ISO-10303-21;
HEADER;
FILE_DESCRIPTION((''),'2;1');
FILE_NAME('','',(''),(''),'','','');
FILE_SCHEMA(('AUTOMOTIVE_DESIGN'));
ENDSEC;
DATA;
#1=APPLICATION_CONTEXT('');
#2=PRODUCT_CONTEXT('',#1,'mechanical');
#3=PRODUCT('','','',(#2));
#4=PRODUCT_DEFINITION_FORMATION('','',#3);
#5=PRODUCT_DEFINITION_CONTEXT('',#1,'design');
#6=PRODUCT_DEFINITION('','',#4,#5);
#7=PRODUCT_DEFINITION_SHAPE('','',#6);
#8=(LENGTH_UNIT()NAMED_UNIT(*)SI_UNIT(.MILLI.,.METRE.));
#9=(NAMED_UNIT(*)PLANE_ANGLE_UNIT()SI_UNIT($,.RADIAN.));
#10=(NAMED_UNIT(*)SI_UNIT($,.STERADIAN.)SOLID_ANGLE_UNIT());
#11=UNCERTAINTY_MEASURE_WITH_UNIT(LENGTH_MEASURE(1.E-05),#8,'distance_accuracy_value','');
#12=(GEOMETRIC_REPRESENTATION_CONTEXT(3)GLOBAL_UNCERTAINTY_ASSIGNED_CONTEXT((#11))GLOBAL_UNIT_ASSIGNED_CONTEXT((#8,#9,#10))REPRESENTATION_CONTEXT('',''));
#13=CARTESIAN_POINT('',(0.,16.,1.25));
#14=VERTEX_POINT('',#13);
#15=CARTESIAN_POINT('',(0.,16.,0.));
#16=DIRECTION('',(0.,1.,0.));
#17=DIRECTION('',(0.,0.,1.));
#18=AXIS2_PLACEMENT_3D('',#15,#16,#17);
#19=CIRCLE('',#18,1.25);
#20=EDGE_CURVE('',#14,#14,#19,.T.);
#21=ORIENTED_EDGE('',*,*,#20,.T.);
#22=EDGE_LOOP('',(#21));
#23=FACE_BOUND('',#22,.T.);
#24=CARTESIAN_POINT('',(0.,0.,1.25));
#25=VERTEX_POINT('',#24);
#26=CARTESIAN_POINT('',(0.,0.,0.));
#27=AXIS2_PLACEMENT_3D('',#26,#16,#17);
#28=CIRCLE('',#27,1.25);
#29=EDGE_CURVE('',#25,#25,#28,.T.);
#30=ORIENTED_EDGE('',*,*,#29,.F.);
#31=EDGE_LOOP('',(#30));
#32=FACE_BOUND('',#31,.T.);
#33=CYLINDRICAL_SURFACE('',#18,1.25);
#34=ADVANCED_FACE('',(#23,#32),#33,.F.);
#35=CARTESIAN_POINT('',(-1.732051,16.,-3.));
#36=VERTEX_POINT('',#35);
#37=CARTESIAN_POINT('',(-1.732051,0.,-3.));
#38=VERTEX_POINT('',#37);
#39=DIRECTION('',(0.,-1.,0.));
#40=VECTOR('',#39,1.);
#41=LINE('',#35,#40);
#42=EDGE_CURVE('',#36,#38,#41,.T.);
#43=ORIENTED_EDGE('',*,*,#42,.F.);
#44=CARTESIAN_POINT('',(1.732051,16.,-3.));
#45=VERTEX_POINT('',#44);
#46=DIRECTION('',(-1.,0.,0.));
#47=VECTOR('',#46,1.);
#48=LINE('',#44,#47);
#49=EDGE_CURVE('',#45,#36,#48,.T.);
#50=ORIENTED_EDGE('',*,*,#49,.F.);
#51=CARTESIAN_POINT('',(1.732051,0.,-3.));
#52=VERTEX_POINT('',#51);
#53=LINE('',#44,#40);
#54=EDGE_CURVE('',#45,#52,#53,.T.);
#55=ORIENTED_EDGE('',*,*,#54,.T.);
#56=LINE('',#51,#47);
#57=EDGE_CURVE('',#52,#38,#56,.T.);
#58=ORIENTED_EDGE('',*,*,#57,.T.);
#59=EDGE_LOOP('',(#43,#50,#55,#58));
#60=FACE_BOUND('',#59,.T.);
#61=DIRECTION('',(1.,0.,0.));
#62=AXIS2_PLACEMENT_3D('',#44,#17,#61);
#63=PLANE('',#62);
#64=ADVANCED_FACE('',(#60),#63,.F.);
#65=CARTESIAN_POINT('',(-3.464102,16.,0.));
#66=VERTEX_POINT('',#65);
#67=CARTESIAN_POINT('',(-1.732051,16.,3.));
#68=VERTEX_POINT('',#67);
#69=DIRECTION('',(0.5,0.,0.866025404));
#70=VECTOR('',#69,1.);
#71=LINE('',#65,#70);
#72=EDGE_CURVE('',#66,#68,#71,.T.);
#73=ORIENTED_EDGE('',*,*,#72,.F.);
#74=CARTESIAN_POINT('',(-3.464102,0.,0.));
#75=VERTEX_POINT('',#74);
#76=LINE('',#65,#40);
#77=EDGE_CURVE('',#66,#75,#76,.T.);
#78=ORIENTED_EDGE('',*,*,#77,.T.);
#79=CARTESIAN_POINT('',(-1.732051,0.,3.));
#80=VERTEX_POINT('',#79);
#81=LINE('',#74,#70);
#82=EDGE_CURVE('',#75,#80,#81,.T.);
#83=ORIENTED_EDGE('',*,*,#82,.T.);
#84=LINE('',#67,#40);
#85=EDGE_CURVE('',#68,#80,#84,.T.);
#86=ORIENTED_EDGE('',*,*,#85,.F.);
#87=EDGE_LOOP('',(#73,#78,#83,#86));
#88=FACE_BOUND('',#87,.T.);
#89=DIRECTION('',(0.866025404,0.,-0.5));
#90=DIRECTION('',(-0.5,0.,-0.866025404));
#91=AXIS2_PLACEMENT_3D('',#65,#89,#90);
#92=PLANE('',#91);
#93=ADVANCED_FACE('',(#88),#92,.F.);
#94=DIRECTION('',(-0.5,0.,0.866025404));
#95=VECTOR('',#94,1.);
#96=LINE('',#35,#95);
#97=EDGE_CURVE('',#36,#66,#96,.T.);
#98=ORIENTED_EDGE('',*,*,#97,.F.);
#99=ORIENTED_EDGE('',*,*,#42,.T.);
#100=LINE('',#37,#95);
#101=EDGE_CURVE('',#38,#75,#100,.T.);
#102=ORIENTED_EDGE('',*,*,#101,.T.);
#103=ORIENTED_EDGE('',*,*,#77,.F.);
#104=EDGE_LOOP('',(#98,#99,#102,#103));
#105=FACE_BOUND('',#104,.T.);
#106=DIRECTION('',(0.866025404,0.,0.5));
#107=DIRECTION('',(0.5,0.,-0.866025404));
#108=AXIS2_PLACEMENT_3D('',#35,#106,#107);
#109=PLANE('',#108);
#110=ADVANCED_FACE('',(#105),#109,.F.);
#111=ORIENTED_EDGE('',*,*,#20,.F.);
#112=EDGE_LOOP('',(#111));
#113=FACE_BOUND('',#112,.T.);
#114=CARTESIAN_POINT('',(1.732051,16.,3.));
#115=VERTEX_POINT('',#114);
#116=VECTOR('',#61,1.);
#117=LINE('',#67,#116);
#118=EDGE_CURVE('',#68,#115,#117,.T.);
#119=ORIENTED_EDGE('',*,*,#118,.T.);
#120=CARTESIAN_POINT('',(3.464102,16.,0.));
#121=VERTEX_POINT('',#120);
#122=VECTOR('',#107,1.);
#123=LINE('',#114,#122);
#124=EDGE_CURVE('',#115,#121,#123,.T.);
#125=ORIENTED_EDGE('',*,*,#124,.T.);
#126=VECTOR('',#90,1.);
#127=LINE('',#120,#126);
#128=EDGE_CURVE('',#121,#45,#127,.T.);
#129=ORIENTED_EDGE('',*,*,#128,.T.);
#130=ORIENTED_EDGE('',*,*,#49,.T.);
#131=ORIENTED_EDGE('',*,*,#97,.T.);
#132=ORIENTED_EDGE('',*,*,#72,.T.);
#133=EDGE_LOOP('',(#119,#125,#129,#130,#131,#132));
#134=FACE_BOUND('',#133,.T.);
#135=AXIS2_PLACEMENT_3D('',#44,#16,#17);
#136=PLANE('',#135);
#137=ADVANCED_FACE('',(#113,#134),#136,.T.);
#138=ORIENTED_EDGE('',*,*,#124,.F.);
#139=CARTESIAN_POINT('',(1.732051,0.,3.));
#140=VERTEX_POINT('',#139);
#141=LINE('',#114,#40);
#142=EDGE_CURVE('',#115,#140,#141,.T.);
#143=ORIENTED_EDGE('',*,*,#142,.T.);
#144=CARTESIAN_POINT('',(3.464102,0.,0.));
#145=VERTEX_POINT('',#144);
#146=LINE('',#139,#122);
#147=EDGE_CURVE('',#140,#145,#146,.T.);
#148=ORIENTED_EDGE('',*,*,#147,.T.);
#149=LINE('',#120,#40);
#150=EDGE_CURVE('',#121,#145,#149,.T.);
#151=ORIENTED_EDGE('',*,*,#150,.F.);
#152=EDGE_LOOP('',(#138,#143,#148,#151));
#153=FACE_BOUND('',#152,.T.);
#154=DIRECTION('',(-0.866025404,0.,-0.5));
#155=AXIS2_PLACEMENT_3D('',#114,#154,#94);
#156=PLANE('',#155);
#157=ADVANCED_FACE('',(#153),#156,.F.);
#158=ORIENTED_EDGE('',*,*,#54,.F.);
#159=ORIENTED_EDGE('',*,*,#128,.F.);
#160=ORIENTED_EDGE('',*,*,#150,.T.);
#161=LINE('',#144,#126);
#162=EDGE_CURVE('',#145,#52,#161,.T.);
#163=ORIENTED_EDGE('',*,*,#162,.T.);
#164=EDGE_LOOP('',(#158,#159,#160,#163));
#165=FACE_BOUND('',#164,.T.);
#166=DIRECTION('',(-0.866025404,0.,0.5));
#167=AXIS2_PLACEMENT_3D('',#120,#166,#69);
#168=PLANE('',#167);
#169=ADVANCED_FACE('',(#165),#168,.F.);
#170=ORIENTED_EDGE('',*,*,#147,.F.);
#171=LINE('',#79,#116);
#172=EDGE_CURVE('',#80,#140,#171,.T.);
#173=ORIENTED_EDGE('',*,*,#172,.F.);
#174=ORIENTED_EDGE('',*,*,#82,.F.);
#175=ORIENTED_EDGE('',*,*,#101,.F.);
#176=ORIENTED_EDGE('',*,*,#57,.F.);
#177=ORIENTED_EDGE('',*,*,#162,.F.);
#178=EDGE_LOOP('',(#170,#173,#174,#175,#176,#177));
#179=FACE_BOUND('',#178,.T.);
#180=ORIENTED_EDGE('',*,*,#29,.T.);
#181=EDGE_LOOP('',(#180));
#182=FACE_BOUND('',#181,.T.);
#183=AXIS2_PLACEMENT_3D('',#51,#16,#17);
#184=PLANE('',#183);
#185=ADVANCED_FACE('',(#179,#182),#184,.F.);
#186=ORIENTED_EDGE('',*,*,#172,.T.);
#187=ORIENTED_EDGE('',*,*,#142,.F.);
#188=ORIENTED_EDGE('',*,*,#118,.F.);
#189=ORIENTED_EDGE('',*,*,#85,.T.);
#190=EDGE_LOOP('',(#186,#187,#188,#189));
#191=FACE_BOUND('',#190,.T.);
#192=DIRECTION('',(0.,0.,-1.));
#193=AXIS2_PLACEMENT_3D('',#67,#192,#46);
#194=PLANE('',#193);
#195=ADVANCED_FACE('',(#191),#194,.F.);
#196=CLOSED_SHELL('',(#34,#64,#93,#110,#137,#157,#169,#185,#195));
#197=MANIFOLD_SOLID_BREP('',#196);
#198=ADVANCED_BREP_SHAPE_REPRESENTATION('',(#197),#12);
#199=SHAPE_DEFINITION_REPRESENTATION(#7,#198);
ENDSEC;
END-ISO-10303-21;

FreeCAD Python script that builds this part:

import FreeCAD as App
import Part
import Sketcher
from FreeCAD import Vector
Q = App.Units.Quantity

doc = App.newDocument("Part")
body = doc.addObject("PartDesign::Body", "Body")

# Sketch on XZ plane
sketch1 = doc.addObject("Sketcher::SketchObject", "Sketch")
body.addObject(sketch1)
sketch1.AttachmentSupport = (doc.XZ_Plane, [""])
sketch1.MapMode = "FlatFace"
sketch1.addGeometry(Part.LineSegment(Vector(1.7, -3, 0), Vector(-1.7, -3, 0)), False)
sketch1.addGeometry(Part.LineSegment(Vector(-1.7, -3, 0), Vector(-3.5, 0, 0)), False)
sketch1.addGeometry(Part.LineSegment(Vector(-3.5, 0, 0), Vector(-1.7, 3, 0)), False)
sketch1.addGeometry(Part.LineSegment(Vector(-1.7, 3, 0), Vector(1.7, 3, 0)), False)
sketch1.addGeometry(Part.LineSegment(Vector(1.7, 3, 0), Vector(3.5, 0, 0)), False)
sketch1.addGeometry(Part.LineSegment(Vector(3.5, 0, 0), Vector(1.7, -3, 0)), False)
sketch1.addConstraint(Sketcher.Constraint("Coincident", 0, 2, 1, 1))
sketch1.addConstraint(Sketcher.Constraint("Coincident", 1, 2, 2, 1))
sketch1.addConstraint(Sketcher.Constraint("Coincident", 2, 2, 3, 1))
sketch1.addConstraint(Sketcher.Constraint("Coincident", 3, 2, 4, 1))
sketch1.addConstraint(Sketcher.Constraint("Coincident", 4, 2, 5, 1))
sketch1.addConstraint(Sketcher.Constraint("Coincident", 5, 2, 0, 1))
sketch1.addConstraint(Sketcher.Constraint("Horizontal", 0))
sketch1.addConstraint(Sketcher.Constraint("Horizontal", 3))
sketch1.addConstraint(Sketcher.Constraint("Symmetric", 0, 2, 3, 2, -1, 1))
sketch1.addConstraint(Sketcher.Constraint("Symmetric", 1, 2, 4, 2, -1, 1))
sketch1.addConstraint(Sketcher.Constraint("PointOnObject", 1, 2, -1))
sketch1.addConstraint(Sketcher.Constraint("Parallel", 2, 5))
sketch1.addConstraint(Sketcher.Constraint("Vertical", 0, 2, 2, 2))
sketch1.addConstraint(Sketcher.Constraint("Angle", 1, Q("120 deg")))
sketch1.addConstraint(Sketcher.Constraint("DistanceY", 0, 2, -1, 1, Q("3 mm")))
sketch1.addConstraint(Sketcher.Constraint("DistanceX", 0, 2, 0, 1, Q("3.464102 mm")))
pad1 = doc.addObject("PartDesign::Pad", "Pad")
body.addObject(pad1)
pad1.Profile = sketch1
pad1.Length = 16
pad1.Reversed = True

# Sketch on XZ plane
sketch2 = doc.addObject("Sketcher::SketchObject", "Sketch001")
body.addObject(sketch2)
sketch2.AttachmentSupport = (doc.XZ_Plane, [""])
sketch2.MapMode = "FlatFace"
sketch2.AttachmentOffset = App.Placement(Vector(0, 0, -16), App.Rotation())
sketch2.addGeometry(Part.Circle(Vector(0, 0, 0), Vector(0, 0, 1), 1.2), False)
sketch2.addConstraint(Sketcher.Constraint("Coincident", 0, 3, -1, 1))
sketch2.addConstraint(Sketcher.Constraint("Diameter", 0, Q("2.5 mm")))
doc.recompute()
hole = doc.addObject("PartDesign::Hole", "Hole")
body.addObject(hole)
hole.Profile = sketch2
hole.ThreadType = "None"
hole.Diameter = 2.5
hole.DepthType = "ThroughAll"
hole.Reversed = True

doc.recompute()
